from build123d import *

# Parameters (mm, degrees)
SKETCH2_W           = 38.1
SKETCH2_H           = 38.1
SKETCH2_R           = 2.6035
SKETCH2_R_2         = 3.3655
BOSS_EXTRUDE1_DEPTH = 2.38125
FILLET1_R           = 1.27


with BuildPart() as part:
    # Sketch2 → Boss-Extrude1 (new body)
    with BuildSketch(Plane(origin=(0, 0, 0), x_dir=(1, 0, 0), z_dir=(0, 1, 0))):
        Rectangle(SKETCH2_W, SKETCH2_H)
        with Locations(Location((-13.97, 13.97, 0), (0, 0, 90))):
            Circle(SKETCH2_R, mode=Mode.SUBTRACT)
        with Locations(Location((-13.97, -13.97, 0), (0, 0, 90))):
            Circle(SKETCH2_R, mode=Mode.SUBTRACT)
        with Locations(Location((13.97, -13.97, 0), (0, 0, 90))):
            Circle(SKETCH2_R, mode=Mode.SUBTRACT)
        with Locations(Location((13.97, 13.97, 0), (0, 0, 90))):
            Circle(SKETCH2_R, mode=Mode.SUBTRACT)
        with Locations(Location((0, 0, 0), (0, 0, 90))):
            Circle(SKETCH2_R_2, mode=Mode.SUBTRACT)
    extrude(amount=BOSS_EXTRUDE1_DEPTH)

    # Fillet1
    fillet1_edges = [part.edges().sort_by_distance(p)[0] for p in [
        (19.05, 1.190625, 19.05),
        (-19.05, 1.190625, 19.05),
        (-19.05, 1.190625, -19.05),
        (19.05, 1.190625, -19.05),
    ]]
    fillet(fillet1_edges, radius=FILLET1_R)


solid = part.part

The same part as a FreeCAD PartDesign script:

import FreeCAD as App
import Part
import Sketcher
from FreeCAD import Vector
Q = App.Units.Quantity


def edges_at(feature, points):
    """Names of the edges that pass closest to the given points."""
    edges = feature.Shape.Edges
    near = lambda p: min(range(len(edges)), key=lambda i: edges[i].distToShape(Part.Vertex(*p))[0])
    return sorted({f"Edge{near(p) + 1}" for p in points})

doc = App.newDocument("Part")
body = doc.addObject("PartDesign::Body", "Body")

sketch1 = doc.addObject("Sketcher::SketchObject", "Sketch")
body.addObject(sketch1)
sketch1.AttachmentSupport = (doc.XZ_Plane, [""])
sketch1.MapMode = "FlatFace"
sketch1.addGeometry(Part.LineSegment(Vector(-19.1, -19.1, 0), Vector(-19.1, 19.1, 0)), False)
sketch1.addGeometry(Part.LineSegment(Vector(-19.1, 19.1, 0), Vector(19.1, 19.1, 0)), False)
sketch1.addGeometry(Part.LineSegment(Vector(19.1, 19.1, 0), Vector(19.1, -19.1, 0)), False)
sketch1.addGeometry(Part.LineSegment(Vector(19.1, -19.1, 0), Vector(-19.1, -19.1, 0)), False)
sketch1.addGeometry(Part.Circle(Vector(-14, 14, 0), Vector(0, 0, 1), 2.6), False)
sketch1.addGeometry(Part.Circle(Vector(14, 14, 0), Vector(0, 0, 1), 2.6), False)
sketch1.addGeometry(Part.Circle(Vector(-14, -14, 0), Vector(0, 0, 1), 2.6), False)
sketch1.addGeometry(Part.Circle(Vector(0, 0, 0), Vector(0, 0, 1), 3.4), False)
sketch1.addGeometry(Part.Circle(Vector(14, -14, 0), Vector(0, 0, 1), 2.6), False)
sketch1.addConstraint(Sketcher.Constraint("Coincident", 0, 2, 1, 1))
sketch1.addConstraint(Sketcher.Constraint("Coincident", 1, 2, 2, 1))
sketch1.addConstraint(Sketcher.Constraint("Coincident", 2, 2, 3, 1))
sketch1.addConstraint(Sketcher.Constraint("Coincident", 3, 2, 0, 1))
sketch1.addConstraint(Sketcher.Constraint("Vertical", 0))
sketch1.addConstraint(Sketcher.Constraint("Horizontal", 1))
sketch1.addConstraint(Sketcher.Constraint("Vertical", 2))
sketch1.addConstraint(Sketcher.Constraint("Horizontal", 3))
sketch1.addConstraint(Sketcher.Constraint("Coincident", 7, 3, -1, 1))
sketch1.addConstraint(Sketcher.Constraint("Equal", 4, 5))
sketch1.addConstraint(Sketcher.Constraint("Equal", 5, 6))
sketch1.addConstraint(Sketcher.Constraint("Equal", 6, 8))
sketch1.addConstraint(Sketcher.Constraint("Symmetric", 5, 3, 6, 3, -1, 1))
sketch1.addConstraint(Sketcher.Constraint("Symmetric", 4, 3, 8, 3, -1, 1))
sketch1.addConstraint(Sketcher.Constraint("Symmetric", 0, 2, 2, 2, -1, 1))
sketch1.addConstraint(Sketcher.Constraint("Symmetric", 4, 3, 5, 3, -2))
sketch1.addConstraint(Sketcher.Constraint("Equal", 3, 0))
sketch1.addConstraint(Sketcher.Constraint("Diameter", 4, Q("0.205 in")))
sketch1.addConstraint(Sketcher.Constraint("Diameter", 7, Q("0.265 in")))
sketch1.addConstraint(Sketcher.Constraint("DistanceX", 1, 1, 1, 2, Q("1.5 in")))
sketch1.addConstraint(Sketcher.Constraint("DistanceX", 4, 3, 5, 3, Q("1.1 in")))
sketch1.addConstraint(Sketcher.Constraint("DistanceY", 6, 3, 4, 3, Q("1.1 in")))
pad1 = doc.addObject("PartDesign::Pad", "Pad")
body.addObject(pad1)
pad1.Profile = sketch1
pad1.Length = Q("0.09375 in")
pad1.Reversed = True
doc.recompute()

fillet = doc.addObject("PartDesign::Fillet", "Fillet")
body.addObject(fillet)
fillet.Base = (pad1, edges_at(pad1, [
    (19.05, 1.191, 19.05),
    (-19.05, 1.191, 19.05),
    (-19.05, 1.191, -19.05),
    (19.05, 1.191, -19.05),
]))
fillet.Radius = Q("0.05 in")

doc.recompute()
